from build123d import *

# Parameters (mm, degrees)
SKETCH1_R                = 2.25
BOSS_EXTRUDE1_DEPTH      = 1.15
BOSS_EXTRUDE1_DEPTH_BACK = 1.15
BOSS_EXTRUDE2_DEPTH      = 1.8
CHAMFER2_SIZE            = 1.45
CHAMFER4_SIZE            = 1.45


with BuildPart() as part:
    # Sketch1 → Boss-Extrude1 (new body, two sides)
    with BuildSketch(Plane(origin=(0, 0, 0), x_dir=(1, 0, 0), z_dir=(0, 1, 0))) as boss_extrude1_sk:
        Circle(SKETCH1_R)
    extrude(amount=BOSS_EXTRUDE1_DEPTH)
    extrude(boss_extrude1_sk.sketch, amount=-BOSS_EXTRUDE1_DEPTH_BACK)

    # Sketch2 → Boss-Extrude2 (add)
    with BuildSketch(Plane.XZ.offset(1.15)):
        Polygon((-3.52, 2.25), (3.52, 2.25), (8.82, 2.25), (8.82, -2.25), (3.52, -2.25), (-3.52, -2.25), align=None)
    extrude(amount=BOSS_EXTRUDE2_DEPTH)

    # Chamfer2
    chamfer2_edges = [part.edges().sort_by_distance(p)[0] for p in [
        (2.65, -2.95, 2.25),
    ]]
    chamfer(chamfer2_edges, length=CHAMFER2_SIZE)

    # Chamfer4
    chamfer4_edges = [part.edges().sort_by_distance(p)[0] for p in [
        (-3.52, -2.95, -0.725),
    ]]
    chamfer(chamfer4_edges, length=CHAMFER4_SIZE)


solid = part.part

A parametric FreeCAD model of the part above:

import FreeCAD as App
import Part
import Sketcher

V = App.Vector


def edges_at(feature, points):
    """Names of the edges that pass closest to the given points."""
    edges = feature.Shape.Edges
    near = lambda p: min(range(len(edges)), key=lambda i: edges[i].distToShape(Part.Vertex(*p))[0])
    return sorted({f"Edge{near(p) + 1}" for p in points})


def add_polygon(sketch, points):
    """Adds a closed chain of lines whose ends are joined by coincident constraints."""
    first, n = sketch.GeometryCount, len(points)
    for a, b in zip(points, points[1:] + points[:1]):
        sketch.addGeometry(Part.LineSegment(App.Vector(*a, 0), App.Vector(*b, 0)), False)
    for i in range(n):
        sketch.addConstraint(Sketcher.Constraint("Coincident", first + i, 2, first + (i + 1) % n, 1))

doc = App.newDocument("Part")
body = doc.addObject("PartDesign::Body", "Body")

# Sketch on XZ plane
sketch1 = body.newObject("Sketcher::SketchObject", "Sketch")
sketch1.AttachmentSupport = (doc.getObject("XZ_Plane"), [""])
sketch1.MapMode = "FlatFace"
sketch1.addGeometry(Part.Circle(V(0, 0, 0), V(0, 0, 1), 2.2), False)
sketch1.addConstraint([
    Sketcher.Constraint("Coincident", 0, 3, -1, 1),
    Sketcher.Constraint("Diameter", 0, 4.5),
])
pad1 = body.newObject("PartDesign::Pad", "Pad")
pad1.Profile = sketch1
pad1.Type = "TwoLengths"
pad1.Length = 1.15
pad1.Length2 = 1.15
pad1.Reversed = True

# Sketch on XZ plane
sketch2 = body.newObject("Sketcher::SketchObject", "Sketch001")
sketch2.AttachmentSupport = (doc.getObject("XZ_Plane"), [""])
sketch2.MapMode = "FlatFace"
sketch2.AttachmentOffset = App.Placement(V(0, 0, 1.15), App.Rotation())
add_polygon(sketch2, [(8.8, 2.2), (-3.5, 2.2), (-3.5, -2.2), (8.8, -2.2)])  # lines 0-3
sketch2.addConstraint([
    Sketcher.Constraint("Horizontal", 0),
    Sketcher.Constraint("Vertical", 1),
    Sketcher.Constraint("Horizontal", 2),
    Sketcher.Constraint("Vertical", 3),
    Sketcher.Constraint("DistanceY", 1, 2, 1, 1, 4.5),
    Sketcher.Constraint("DistanceX", 0, 2, 0, 1, 12.34),
    Sketcher.Constraint("DistanceX", 0, 2, -1, 1, 3.52),
    Sketcher.Constraint("DistanceY", -1, 1, 0, 2, 2.25),
])
pad2 = body.newObject("PartDesign::Pad", "Pad001")
pad2.Profile = sketch2
pad2.Length = 1.8
doc.recompute()

chamfer = body.newObject("PartDesign::Chamfer", "Chamfer")
chamfer.Base = (pad2, edges_at(pad2, [(2.65, -2.95, 2.25)]))
chamfer.Size = 1.45
doc.recompute()

chamfer2 = body.newObject("PartDesign::Chamfer", "Chamfer001")
chamfer2.Base = (chamfer, edges_at(chamfer, [(-3.52, -2.95, -0.725)]))
chamfer2.Size = 1.45

doc.recompute()
